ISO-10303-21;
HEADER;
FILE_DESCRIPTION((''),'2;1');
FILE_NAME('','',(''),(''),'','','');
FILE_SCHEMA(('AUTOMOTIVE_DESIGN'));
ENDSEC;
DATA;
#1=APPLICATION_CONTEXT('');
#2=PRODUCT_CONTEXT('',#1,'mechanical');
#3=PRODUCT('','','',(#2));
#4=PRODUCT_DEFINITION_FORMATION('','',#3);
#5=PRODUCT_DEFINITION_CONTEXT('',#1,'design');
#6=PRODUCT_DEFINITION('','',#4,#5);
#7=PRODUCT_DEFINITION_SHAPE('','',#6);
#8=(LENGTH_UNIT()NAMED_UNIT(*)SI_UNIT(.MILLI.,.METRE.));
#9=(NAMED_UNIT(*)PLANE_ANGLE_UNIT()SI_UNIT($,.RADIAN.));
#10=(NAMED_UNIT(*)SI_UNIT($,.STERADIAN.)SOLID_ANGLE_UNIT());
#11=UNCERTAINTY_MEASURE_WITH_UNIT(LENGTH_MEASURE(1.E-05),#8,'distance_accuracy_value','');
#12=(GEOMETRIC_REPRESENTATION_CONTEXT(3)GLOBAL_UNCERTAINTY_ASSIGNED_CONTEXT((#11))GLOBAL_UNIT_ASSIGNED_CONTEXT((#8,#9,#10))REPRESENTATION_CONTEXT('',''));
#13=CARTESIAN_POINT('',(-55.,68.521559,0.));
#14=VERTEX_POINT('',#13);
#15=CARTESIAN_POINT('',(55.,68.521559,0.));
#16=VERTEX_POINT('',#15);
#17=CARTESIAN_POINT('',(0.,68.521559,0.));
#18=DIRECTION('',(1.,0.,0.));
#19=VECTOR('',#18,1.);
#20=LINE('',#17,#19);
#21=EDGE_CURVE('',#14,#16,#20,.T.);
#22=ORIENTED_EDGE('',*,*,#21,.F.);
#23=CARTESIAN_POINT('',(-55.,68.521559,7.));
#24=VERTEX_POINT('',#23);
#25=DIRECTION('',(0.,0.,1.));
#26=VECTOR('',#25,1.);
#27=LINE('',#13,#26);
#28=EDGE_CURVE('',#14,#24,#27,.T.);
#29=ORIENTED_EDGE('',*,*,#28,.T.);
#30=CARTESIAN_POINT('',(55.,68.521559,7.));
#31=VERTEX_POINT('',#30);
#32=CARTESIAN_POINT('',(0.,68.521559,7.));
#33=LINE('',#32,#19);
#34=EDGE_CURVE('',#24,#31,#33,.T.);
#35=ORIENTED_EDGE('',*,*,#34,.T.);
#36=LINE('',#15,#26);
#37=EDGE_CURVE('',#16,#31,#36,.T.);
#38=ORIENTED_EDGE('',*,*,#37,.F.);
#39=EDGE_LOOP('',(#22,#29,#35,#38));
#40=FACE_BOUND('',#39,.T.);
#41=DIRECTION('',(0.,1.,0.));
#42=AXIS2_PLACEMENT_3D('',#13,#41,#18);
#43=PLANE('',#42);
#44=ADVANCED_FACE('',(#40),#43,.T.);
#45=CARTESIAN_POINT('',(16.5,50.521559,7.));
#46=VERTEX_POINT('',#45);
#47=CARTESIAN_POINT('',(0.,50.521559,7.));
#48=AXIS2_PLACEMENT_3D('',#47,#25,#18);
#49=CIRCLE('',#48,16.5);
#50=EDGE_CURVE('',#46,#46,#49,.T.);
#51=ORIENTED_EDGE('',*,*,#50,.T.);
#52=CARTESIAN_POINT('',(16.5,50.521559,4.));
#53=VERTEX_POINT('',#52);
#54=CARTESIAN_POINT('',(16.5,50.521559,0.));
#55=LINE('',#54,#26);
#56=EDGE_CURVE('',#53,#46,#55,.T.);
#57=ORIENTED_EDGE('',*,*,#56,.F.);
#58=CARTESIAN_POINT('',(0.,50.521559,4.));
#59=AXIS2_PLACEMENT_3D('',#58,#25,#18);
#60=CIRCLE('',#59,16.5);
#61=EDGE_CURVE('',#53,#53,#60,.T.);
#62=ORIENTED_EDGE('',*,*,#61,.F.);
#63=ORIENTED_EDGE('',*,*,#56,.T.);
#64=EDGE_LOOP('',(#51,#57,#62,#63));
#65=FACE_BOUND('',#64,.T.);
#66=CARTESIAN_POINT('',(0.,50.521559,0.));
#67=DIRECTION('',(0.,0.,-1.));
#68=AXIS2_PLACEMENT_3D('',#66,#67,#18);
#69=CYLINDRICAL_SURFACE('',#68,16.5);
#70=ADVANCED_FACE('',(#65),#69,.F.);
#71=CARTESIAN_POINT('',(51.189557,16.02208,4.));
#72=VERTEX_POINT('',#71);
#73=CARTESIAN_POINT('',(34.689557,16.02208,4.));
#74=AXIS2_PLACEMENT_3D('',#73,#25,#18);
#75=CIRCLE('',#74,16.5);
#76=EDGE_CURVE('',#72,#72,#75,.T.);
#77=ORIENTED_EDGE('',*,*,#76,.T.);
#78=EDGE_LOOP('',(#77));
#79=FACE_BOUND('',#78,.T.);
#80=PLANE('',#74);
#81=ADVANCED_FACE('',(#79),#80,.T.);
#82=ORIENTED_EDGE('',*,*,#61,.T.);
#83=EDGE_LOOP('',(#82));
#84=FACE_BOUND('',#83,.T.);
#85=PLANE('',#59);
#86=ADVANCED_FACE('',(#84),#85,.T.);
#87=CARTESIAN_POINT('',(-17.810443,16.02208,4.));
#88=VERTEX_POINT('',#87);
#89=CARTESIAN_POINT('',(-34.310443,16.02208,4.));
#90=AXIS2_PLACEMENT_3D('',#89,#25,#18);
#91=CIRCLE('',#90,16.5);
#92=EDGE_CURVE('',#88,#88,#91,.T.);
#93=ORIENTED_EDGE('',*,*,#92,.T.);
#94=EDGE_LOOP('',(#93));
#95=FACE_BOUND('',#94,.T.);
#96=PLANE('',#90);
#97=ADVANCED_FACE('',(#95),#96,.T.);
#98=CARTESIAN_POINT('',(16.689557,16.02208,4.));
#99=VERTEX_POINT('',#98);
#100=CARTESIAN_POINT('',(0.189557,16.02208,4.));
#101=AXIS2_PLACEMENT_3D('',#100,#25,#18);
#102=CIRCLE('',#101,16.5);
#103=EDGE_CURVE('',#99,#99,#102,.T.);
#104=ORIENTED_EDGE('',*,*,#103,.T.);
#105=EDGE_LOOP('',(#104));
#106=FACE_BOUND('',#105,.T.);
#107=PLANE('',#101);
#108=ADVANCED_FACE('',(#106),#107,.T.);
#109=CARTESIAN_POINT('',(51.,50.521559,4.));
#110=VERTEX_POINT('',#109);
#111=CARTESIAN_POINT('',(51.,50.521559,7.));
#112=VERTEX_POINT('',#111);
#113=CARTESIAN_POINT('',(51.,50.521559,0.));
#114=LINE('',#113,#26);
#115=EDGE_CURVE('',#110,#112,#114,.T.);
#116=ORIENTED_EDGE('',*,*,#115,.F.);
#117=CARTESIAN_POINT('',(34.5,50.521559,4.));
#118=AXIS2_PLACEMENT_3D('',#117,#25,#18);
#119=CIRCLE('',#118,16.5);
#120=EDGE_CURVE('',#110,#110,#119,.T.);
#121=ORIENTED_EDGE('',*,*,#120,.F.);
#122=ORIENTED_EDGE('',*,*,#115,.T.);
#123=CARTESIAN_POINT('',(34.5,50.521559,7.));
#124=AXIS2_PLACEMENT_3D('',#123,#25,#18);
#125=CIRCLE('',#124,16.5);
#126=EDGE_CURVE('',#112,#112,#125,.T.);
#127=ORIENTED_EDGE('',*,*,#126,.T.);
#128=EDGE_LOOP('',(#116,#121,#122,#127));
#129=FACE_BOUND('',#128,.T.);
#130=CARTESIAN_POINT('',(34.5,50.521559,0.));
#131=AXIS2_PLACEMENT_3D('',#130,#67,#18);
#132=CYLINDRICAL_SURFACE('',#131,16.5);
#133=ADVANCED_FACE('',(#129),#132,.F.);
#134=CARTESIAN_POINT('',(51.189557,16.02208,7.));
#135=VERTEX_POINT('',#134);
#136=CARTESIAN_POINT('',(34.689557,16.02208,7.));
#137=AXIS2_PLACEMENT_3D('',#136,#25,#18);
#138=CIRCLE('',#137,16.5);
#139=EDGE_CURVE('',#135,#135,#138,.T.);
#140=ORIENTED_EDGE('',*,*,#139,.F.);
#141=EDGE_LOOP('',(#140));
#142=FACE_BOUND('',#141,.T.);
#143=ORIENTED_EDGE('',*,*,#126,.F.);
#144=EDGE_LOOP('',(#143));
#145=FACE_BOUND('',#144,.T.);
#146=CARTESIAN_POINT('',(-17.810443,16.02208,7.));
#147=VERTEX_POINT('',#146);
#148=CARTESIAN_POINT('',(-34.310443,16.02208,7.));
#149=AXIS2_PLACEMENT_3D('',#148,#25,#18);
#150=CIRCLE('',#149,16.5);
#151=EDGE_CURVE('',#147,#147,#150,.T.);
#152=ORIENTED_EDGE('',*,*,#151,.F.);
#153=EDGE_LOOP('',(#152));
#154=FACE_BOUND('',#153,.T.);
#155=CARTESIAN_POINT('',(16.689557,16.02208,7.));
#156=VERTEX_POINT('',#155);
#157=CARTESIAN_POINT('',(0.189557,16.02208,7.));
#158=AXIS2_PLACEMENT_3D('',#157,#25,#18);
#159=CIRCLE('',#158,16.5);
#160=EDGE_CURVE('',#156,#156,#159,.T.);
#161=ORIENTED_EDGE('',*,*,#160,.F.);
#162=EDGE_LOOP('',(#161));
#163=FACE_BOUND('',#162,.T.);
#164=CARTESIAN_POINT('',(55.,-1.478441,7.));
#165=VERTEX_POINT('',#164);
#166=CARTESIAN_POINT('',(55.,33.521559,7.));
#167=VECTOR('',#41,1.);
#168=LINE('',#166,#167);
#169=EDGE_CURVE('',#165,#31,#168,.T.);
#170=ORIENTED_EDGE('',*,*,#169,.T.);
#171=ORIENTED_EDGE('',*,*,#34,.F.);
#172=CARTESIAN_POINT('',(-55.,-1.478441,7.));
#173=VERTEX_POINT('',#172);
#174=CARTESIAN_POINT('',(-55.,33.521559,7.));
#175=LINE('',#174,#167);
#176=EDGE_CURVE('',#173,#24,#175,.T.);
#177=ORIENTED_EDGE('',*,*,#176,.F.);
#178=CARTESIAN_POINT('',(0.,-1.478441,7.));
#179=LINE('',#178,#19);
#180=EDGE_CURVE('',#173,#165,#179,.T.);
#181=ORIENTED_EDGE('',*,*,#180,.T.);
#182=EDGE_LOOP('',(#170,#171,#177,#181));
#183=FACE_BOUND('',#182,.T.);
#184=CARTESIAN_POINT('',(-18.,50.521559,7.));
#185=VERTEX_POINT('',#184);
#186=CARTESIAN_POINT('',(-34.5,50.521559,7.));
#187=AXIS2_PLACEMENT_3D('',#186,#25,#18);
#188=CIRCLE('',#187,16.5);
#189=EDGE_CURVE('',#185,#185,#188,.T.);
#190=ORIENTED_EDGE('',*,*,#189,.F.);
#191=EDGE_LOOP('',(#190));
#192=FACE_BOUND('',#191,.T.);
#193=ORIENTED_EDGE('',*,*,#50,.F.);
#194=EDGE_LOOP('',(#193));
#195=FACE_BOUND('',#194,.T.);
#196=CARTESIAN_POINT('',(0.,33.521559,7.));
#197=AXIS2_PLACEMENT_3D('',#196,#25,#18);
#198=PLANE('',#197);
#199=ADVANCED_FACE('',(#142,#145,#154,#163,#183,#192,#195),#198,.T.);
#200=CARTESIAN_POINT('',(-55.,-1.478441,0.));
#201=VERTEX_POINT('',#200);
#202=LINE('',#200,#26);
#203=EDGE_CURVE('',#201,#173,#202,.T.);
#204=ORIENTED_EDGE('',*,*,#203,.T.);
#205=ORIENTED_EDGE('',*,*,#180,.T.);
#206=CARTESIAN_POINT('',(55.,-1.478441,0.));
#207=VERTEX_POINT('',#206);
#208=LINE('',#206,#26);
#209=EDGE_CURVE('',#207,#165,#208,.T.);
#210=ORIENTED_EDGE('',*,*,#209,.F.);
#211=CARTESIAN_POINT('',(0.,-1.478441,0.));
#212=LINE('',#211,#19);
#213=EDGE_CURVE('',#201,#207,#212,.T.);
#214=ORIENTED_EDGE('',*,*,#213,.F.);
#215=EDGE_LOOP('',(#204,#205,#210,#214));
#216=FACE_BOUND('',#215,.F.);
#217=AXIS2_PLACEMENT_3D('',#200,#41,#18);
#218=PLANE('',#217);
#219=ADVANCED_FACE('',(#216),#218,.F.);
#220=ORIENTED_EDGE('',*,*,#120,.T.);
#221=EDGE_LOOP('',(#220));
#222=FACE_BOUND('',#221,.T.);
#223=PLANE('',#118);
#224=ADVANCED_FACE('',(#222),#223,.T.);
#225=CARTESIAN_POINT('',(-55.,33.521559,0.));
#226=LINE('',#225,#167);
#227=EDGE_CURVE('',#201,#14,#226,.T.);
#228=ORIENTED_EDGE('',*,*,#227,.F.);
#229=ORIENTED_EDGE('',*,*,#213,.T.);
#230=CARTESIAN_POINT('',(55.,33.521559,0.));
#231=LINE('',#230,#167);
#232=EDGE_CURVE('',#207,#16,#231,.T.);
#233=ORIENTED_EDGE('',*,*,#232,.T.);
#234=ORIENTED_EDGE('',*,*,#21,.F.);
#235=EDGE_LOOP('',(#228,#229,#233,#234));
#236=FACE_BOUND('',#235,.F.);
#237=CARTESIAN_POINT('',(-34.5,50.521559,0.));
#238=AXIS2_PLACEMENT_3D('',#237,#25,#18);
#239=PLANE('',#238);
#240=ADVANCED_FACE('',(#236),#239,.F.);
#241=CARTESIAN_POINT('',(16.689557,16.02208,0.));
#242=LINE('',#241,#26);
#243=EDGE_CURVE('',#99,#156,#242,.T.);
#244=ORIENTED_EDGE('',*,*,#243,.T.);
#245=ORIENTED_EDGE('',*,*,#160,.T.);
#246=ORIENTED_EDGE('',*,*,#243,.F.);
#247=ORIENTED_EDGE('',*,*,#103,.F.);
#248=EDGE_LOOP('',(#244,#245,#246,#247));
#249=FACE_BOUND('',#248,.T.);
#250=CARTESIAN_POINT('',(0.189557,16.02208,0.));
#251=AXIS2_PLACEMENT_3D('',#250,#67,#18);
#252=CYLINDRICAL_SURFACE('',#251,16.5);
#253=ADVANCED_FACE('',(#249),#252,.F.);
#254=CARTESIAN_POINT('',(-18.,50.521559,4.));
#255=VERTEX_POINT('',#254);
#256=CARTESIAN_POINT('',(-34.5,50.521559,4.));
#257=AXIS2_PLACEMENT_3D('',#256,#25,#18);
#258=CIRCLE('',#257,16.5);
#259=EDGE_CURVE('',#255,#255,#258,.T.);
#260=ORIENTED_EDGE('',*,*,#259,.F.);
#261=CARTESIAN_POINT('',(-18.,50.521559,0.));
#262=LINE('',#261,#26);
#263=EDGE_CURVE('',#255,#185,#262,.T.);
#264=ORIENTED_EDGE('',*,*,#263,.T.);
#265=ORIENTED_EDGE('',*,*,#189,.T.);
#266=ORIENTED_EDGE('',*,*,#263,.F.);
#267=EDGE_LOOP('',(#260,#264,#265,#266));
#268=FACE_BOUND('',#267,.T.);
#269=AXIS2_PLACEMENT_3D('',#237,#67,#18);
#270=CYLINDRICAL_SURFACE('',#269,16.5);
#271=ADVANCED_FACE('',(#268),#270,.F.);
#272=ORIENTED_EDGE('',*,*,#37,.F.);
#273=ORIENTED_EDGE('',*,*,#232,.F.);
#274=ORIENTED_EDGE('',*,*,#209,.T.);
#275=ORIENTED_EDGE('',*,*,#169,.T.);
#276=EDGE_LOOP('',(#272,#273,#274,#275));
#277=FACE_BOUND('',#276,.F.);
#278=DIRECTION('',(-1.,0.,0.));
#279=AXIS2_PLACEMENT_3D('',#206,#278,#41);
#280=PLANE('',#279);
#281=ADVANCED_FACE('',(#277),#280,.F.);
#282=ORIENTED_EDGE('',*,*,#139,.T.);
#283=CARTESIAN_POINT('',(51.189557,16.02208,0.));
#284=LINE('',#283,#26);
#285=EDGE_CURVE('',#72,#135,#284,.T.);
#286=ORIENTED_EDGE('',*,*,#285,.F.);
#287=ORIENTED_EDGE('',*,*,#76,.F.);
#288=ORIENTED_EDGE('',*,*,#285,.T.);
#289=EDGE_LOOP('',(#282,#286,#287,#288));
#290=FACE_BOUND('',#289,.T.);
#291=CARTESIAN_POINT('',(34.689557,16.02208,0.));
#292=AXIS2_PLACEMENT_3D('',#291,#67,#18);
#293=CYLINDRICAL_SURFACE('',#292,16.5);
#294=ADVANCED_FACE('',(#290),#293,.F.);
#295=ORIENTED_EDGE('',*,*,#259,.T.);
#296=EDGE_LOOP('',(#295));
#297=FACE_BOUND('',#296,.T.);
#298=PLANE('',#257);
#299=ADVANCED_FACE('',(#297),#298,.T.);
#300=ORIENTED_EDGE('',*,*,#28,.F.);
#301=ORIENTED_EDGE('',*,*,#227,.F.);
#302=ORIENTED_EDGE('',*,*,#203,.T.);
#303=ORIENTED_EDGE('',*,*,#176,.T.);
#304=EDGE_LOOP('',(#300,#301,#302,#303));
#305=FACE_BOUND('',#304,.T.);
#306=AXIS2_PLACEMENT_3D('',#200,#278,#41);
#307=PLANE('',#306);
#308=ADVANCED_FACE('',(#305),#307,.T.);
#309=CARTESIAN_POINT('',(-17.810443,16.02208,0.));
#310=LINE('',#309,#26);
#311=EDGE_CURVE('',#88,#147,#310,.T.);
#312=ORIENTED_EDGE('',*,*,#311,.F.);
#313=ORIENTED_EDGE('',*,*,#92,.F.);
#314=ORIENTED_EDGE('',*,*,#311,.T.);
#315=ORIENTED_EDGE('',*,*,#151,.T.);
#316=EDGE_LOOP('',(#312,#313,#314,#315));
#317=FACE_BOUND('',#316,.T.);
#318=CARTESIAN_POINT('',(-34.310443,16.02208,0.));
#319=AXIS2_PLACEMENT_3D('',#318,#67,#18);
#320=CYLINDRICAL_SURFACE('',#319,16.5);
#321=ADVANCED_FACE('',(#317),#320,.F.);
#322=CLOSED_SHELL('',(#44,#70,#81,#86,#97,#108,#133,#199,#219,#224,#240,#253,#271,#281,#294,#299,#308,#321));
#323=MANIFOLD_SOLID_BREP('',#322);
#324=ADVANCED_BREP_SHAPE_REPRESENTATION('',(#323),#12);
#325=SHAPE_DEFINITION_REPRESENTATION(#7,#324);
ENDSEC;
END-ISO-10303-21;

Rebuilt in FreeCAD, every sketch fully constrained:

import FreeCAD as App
import Part
import Sketcher

V = App.Vector


def add_polygon(sketch, points):
    """Adds a closed chain of lines whose ends are joined by coincident constraints."""
    first, n = sketch.GeometryCount, len(points)
    for a, b in zip(points, points[1:] + points[:1]):
        sketch.addGeometry(Part.LineSegment(App.Vector(*a, 0), App.Vector(*b, 0)), False)
    for i in range(n):
        sketch.addConstraint(Sketcher.Constraint("Coincident", first + i, 2, first + (i + 1) % n, 1))

doc = App.newDocument("Part")
body = doc.addObject("PartDesign::Body", "Body")

# Sketch on XY plane
sketch1 = body.newObject("Sketcher::SketchObject", "Sketch")
sketch1.AttachmentSupport = (doc.getObject("XY_Plane"), [""])
sketch1.MapMode = "FlatFace"
add_polygon(sketch1, [(-55, 69), (-55, -1), (55, -1), (55, 69)])  # lines 0-3
sketch1.addGeometry(Part.Circle(V(-34, 16, 0), V(0, 0, 1), 16), False)  # 4
sketch1.addGeometry(Part.Circle(V(0, 16, 0), V(0, 0, 1), 16), False)  # 5
sketch1.addGeometry(Part.Circle(V(35, 16, 0), V(0, 0, 1), 16), False)  # 6
sketch1.addGeometry(Part.Circle(V(-34, 51, 0), V(0, 0, 1), 16), False)  # 7
sketch1.addGeometry(Part.Circle(V(0, 51, 0), V(0, 0, 1), 16), False)  # 8
sketch1.addGeometry(Part.Circle(V(34, 51, 0), V(0, 0, 1), 16), False)  # 9
sketch1.addConstraint([
    Sketcher.Constraint("Vertical", 0),
    Sketcher.Constraint("Horizontal", 1),
    Sketcher.Constraint("Vertical", 2),
    Sketcher.Constraint("Horizontal", 3),
    Sketcher.Constraint("Equal", 4, 5),
    Sketcher.Constraint("Equal", 5, 6),
    Sketcher.Constraint("Equal", 6, 7),
    Sketcher.Constraint("Equal", 7, 8),
    Sketcher.Constraint("Equal", 8, 9),
    Sketcher.Constraint("Symmetric", 7, 3, 9, 3, -2),
    Sketcher.Constraint("PointOnObject", 8, 3, -2),
    Sketcher.Constraint("Horizontal", 4, 3, 5, 3),
    Sketcher.Constraint("Horizontal", 5, 3, 6, 3),
    Sketcher.Constraint("Horizontal", 7, 3, 8, 3),
    Sketcher.Constraint("Diameter", 4, 33.0),
    Sketcher.Constraint("DistanceX", 1, 1, 1, 2, 110.0),
    Sketcher.Constraint("DistanceY", 0, 2, 0, 1, 70.0),
    Sketcher.Constraint("DistanceX", 0, 2, -1, 1, 55.0),
    Sketcher.Constraint("DistanceX", 4, 3, 6, 3, 69.0),
    Sketcher.Constraint("DistanceX", 7, 3, 9, 3, 69.0),
    Sketcher.Constraint("DistanceY", 0, 2, 7, 3, 52.0),
    Sketcher.Constraint("DistanceX", 4, 3, 5, 3, 34.5),
    Sketcher.Constraint("DistanceY", -1, 1, 4, 3, 16.02208),
    Sketcher.Constraint("DistanceY", -1, 1, 7, 3, 50.521559),
    Sketcher.Constraint("DistanceX", 4, 3, -1, 1, 34.310443),
])
pad1 = body.newObject("PartDesign::Pad", "Pad")
pad1.Profile = sketch1
pad1.Length = 7

# Sketch on XY plane
sketch2 = body.newObject("Sketcher::SketchObject", "Sketch001")
sketch2.AttachmentSupport = (doc.getObject("XY_Plane"), [""])
sketch2.MapMode = "FlatFace"
sketch2.addGeometry([
    Part.Circle(V(-34, 51, 0), V(0, 0, 1), 16),  # 0
    Part.Circle(V(0, 51, 0), V(0, 0, 1), 16),  # 1
    Part.Circle(V(34, 51, 0), V(0, 0, 1), 16),  # 2
    Part.Circle(V(35, 16, 0), V(0, 0, 1), 16),  # 3
    Part.Circle(V(0, 16, 0), V(0, 0, 1), 16),  # 4
    Part.Circle(V(-34, 16, 0), V(0, 0, 1), 16),  # 5
], False)
sketch2.addConstraint([
    Sketcher.Constraint("Equal", 0, 1),
    Sketcher.Constraint("Equal", 1, 2),
    Sketcher.Constraint("Equal", 2, 3),
    Sketcher.Constraint("Equal", 3, 4),
    Sketcher.Constraint("Equal", 4, 5),
    Sketcher.Constraint("Symmetric", 0, 3, 2, 3, -2),
    Sketcher.Constraint("PointOnObject", 1, 3, -2),
    Sketcher.Constraint("Horizontal", 0, 3, 1, 3),
    Sketcher.Constraint("Horizontal", 3, 3, 4, 3),
    Sketcher.Constraint("Horizontal", 4, 3, 5, 3),
    Sketcher.Constraint("Diameter", 0, 33.0),
    Sketcher.Constraint("DistanceX", 0, 3, 2, 3, 69.0),
    Sketcher.Constraint("DistanceX", 5, 3, 3, 3, 69.0),
    Sketcher.Constraint("DistanceX", 4, 3, 3, 3, 34.5),
    Sketcher.Constraint("DistanceY", -1, 1, 0, 3, 50.521559),
    Sketcher.Constraint("DistanceY", -1, 1, 3, 3, 16.02208),
    Sketcher.Constraint("DistanceX", -1, 1, 3, 3, 34.689557),
])
pad2 = body.newObject("PartDesign::Pad", "Pad001")
pad2.Profile = sketch2
pad2.Length = 4

doc.recompute()
